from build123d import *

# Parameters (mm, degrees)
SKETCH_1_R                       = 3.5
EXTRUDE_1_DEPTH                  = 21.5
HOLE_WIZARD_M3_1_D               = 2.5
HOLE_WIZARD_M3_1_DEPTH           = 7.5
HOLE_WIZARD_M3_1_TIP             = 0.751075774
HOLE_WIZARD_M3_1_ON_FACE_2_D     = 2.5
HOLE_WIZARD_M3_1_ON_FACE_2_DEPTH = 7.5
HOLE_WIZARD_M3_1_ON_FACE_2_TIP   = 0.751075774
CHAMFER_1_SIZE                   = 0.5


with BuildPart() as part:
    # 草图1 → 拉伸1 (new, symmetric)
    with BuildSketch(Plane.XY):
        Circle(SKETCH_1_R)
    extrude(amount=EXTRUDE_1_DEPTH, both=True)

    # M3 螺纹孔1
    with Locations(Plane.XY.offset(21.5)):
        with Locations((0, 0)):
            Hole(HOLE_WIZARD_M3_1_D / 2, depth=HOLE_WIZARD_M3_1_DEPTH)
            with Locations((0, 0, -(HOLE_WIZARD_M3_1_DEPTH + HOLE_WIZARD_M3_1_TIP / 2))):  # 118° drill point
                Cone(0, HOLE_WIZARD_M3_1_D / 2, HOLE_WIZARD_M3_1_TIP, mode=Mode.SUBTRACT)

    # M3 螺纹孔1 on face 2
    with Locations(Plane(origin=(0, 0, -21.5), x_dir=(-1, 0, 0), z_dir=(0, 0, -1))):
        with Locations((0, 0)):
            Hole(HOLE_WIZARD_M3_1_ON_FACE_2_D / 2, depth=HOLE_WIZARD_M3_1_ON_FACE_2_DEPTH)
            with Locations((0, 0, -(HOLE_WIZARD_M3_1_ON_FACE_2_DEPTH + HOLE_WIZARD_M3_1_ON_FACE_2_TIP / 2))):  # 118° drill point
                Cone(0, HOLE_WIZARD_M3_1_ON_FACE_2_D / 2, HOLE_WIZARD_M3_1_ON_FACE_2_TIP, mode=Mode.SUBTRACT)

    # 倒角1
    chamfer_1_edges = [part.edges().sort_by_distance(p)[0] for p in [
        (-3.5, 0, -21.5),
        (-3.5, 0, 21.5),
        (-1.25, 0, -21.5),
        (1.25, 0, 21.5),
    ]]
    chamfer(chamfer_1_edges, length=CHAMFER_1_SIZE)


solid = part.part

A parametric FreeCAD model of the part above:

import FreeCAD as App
import Part
import Sketcher

V = App.Vector
Q = App.Units.Quantity


def edges_at(feature, points):
    """Names of the edges that pass closest to the given points."""
    edges = feature.Shape.Edges
    near = lambda p: min(range(len(edges)), key=lambda i: edges[i].distToShape(Part.Vertex(*p))[0])
    return sorted({f"Edge{near(p) + 1}" for p in points})

doc = App.newDocument("Part")
body = doc.addObject("PartDesign::Body", "Body")

# Sketch on XY plane
sketch1 = body.newObject("Sketcher::SketchObject", "Sketch")
sketch1.AttachmentSupport = (doc.getObject("XY_Plane"), [""])
sketch1.MapMode = "FlatFace"
sketch1.addGeometry(Part.Circle(V(0, 0, 0), V(0, 0, 1), 3.5), False)
sketch1.addConstraint(Sketcher.Constraint("Coincident", 0, 3, -1, 1))
sketch1.addConstraint(Sketcher.Constraint("Diameter", 0, Q("7 mm")))
pad1 = body.newObject("PartDesign::Pad", "Pad")
pad1.Profile = sketch1
pad1.Length = 43
pad1.Midplane = True

# Sketch on XY plane
sketch2 = body.newObject("Sketcher::SketchObject", "Sketch001")
sketch2.AttachmentSupport = (doc.getObject("XY_Plane"), [""])
sketch2.MapMode = "FlatFace"
sketch2.AttachmentOffset = App.Placement(V(0, 0, 21.5), App.Rotation())
sketch2.addGeometry(Part.Circle(V(0, 0, 0), V(0, 0, 1), 1.2), False)
sketch2.addConstraint(Sketcher.Constraint("Coincident", 0, 3, -1, 1))
sketch2.addConstraint(Sketcher.Constraint("Diameter", 0, Q("2.5 mm")))
doc.recompute()
hole = body.newObject("PartDesign::Hole", "Hole")
hole.Profile = sketch2
hole.ThreadType = "None"
hole.Diameter = 2.5
hole.DepthType = "Dimension"
hole.Depth = 7.5
hole.DrillPoint = "Angled"
hole.DrillPointAngle = 118

# Sketch on XY plane
sketch3 = body.newObject("Sketcher::SketchObject", "Sketch002")
sketch3.AttachmentSupport = (doc.getObject("XY_Plane"), [""])
sketch3.MapMode = "FlatFace"
sketch3.AttachmentOffset = App.Placement(V(0, 0, -21.5), App.Rotation())
sketch3.addGeometry(Part.Circle(V(0, 0, 0), V(0, 0, 1), 1.2), False)
sketch3.addConstraint(Sketcher.Constraint("Coincident", 0, 3, -1, 1))
sketch3.addConstraint(Sketcher.Constraint("Diameter", 0, Q("2.5 mm")))
doc.recompute()
hole2 = body.newObject("PartDesign::Hole", "Hole001")
hole2.Profile = sketch3
hole2.ThreadType = "None"
hole2.Diameter = 2.5
hole2.DepthType = "Dimension"
hole2.Depth = 7.5
hole2.DrillPoint = "Angled"
hole2.DrillPointAngle = 118
hole2.Reversed = True
doc.recompute()

chamfer = body.newObject("PartDesign::Chamfer", "Chamfer")
chamfer.Base = (hole2, edges_at(hole2, [
    (-3.5, 0, -21.5),
    (-3.5, 0, 21.5),
    (-1.25, 0, -21.5),
    (1.25, 0, 21.5),
]))
chamfer.Size = 0.5

doc.recompute()
